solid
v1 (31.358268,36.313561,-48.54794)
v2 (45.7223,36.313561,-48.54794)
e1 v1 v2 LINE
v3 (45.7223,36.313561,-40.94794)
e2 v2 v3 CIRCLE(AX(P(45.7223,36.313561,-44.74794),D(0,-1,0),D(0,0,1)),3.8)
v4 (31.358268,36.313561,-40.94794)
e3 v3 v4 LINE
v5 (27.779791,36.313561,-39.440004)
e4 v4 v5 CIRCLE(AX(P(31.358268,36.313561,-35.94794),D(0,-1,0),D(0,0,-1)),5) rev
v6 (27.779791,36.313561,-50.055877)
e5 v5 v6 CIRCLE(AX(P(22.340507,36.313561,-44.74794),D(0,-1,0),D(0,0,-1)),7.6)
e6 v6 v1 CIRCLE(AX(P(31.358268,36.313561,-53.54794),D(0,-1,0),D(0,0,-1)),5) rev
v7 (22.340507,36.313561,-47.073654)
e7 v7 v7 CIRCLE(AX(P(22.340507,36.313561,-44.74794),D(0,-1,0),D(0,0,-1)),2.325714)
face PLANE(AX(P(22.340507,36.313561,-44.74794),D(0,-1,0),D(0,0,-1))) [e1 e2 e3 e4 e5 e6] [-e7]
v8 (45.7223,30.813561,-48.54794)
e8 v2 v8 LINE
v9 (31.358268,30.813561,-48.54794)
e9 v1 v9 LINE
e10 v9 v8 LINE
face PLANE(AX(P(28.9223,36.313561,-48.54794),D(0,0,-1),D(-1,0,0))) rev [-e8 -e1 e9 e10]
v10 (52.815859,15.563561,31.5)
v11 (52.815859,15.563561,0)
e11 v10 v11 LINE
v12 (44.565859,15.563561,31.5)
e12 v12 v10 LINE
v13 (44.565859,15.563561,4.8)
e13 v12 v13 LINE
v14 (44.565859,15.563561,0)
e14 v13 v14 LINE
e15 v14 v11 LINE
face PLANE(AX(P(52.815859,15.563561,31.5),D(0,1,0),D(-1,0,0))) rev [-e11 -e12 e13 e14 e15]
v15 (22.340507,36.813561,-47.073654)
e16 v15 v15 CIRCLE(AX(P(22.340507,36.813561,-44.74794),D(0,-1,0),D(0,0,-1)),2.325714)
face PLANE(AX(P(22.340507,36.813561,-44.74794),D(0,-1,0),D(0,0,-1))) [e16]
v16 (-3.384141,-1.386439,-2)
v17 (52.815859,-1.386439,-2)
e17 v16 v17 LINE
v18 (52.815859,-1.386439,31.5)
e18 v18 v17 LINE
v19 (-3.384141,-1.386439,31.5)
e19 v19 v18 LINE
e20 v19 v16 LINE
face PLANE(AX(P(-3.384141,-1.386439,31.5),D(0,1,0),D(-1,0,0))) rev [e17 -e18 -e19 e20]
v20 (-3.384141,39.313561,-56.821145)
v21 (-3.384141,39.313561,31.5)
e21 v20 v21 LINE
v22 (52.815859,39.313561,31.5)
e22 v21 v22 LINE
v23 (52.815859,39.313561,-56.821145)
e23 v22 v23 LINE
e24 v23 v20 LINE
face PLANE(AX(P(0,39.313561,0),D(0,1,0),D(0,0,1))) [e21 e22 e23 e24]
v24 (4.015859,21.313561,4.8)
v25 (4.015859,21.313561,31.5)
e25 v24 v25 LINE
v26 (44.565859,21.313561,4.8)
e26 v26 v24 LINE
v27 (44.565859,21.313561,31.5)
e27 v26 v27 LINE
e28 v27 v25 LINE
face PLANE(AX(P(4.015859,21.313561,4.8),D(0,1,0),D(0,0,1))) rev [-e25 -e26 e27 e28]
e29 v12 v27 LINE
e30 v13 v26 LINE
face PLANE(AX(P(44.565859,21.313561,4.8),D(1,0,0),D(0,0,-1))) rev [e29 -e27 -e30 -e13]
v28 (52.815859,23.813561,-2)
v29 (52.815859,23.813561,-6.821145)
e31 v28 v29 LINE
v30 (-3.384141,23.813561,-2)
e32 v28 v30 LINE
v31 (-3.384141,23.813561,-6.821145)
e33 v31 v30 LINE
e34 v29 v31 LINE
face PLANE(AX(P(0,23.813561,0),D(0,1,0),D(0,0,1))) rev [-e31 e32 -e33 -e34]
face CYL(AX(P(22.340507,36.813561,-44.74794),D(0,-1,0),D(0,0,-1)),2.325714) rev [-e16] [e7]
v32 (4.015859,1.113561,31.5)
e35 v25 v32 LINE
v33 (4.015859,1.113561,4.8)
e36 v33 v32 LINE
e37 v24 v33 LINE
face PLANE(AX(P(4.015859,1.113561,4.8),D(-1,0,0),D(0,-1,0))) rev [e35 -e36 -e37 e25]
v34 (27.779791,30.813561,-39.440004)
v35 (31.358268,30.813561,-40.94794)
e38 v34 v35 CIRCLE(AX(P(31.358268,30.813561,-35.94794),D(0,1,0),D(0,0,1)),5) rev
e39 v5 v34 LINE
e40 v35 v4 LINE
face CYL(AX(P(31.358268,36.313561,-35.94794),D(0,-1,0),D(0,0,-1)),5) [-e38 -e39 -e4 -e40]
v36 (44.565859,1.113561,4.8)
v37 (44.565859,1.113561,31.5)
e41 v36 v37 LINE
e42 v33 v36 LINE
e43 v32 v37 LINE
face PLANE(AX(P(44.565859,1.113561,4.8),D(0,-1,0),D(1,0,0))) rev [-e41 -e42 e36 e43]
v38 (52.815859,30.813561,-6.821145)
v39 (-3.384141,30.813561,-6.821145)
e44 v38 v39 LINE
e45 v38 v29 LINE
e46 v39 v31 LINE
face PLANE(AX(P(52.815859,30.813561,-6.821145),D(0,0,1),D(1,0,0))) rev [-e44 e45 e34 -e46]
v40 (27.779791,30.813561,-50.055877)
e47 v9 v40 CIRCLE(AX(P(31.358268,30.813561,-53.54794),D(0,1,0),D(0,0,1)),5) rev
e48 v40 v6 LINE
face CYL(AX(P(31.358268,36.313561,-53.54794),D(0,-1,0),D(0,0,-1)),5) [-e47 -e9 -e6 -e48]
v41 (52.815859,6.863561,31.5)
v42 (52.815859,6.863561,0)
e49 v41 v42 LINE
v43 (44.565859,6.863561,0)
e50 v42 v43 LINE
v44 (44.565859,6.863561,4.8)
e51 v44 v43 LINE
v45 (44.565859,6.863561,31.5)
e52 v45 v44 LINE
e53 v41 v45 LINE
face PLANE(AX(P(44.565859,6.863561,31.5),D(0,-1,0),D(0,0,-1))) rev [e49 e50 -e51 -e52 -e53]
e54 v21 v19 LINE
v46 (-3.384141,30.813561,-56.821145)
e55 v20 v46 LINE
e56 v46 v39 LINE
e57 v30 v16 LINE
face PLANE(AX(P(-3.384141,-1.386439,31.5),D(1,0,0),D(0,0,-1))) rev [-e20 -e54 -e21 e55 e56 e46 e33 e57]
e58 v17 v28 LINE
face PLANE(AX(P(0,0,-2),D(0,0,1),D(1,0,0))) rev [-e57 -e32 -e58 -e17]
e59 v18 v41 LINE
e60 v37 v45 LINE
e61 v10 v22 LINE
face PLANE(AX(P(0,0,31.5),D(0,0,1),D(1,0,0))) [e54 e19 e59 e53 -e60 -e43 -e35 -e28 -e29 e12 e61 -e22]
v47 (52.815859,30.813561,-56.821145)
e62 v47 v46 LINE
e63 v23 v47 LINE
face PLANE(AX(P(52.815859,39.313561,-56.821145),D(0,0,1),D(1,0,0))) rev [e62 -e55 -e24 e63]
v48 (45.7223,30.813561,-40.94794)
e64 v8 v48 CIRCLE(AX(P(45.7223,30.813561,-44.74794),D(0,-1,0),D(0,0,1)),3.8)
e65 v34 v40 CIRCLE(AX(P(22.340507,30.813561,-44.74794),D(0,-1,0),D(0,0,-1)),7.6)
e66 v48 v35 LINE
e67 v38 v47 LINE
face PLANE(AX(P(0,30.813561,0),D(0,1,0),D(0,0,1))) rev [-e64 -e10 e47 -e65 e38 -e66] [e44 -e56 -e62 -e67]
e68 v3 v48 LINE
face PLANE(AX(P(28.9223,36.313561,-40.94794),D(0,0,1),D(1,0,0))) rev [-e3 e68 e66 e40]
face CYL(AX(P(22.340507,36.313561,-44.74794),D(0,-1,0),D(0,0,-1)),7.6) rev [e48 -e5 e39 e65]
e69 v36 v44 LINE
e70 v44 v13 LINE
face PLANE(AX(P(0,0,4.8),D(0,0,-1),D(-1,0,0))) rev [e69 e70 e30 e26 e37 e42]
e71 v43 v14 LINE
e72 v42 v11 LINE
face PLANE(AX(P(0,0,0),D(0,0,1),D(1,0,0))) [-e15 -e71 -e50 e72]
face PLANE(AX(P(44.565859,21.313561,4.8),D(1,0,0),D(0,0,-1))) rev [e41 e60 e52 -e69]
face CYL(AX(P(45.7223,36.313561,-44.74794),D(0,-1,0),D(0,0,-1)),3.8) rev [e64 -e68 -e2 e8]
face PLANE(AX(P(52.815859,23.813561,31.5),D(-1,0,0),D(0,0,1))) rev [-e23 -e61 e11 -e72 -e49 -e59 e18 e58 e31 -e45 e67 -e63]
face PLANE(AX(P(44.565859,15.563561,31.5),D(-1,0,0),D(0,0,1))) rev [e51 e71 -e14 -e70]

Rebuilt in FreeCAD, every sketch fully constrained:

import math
import FreeCAD as App
import Part
import Sketcher
from FreeCAD import Vector
Q = App.Units.Quantity


def edges_at(feature, points):
    """Names of the edges that pass closest to the given points."""
    edges = feature.Shape.Edges
    near = lambda p: min(range(len(edges)), key=lambda i: edges[i].distToShape(Part.Vertex(*p))[0])
    return sorted({f"Edge{near(p) + 1}" for p in points})

doc = App.newDocument("Part")
body = doc.addObject("PartDesign::Body", "Body")

sketch1 = doc.addObject("Sketcher::SketchObject", "Sketch")
body.addObject(sketch1)
sketch1.AttachmentSupport = (doc.XY_Plane, [""])
sketch1.MapMode = "FlatFace"
sketch1.addGeometry([
    Part.LineSegment(Vector(-3, 24, 0), Vector(-3, -1, 0)),
    Part.LineSegment(Vector(-3, -1, 0), Vector(53, -1, 0)),
    Part.LineSegment(Vector(53, -1, 0), Vector(53, 7, 0)),
    Part.LineSegment(Vector(53, 7, 0), Vector(45, 7, 0)),
    Part.LineSegment(Vector(45, 7, 0), Vector(45, 16, 0)),
    Part.LineSegment(Vector(45, 16, 0), Vector(53, 16, 0)),
    Part.LineSegment(Vector(53, 16, 0), Vector(53, 24, 0)),
    Part.LineSegment(Vector(53, 24, 0), Vector(-3, 24, 0)),
], False)
sketch1.addConstraint([
    Sketcher.Constraint("Coincident", 0, 2, 1, 1),
    Sketcher.Constraint("Coincident", 1, 2, 2, 1),
    Sketcher.Constraint("Coincident", 2, 2, 3, 1),
    Sketcher.Constraint("Coincident", 3, 2, 4, 1),
    Sketcher.Constraint("Coincident", 4, 2, 5, 1),
    Sketcher.Constraint("Coincident", 5, 2, 6, 1),
    Sketcher.Constraint("Coincident", 6, 2, 7, 1),
    Sketcher.Constraint("Coincident", 7, 2, 0, 1),
    Sketcher.Constraint("Vertical", 0),
    Sketcher.Constraint("Horizontal", 1),
    Sketcher.Constraint("Vertical", 2),
    Sketcher.Constraint("Horizontal", 3),
    Sketcher.Constraint("Vertical", 4),
    Sketcher.Constraint("Horizontal", 5),
    Sketcher.Constraint("Vertical", 6),
    Sketcher.Constraint("Horizontal", 7),
    Sketcher.Constraint("Vertical", 2, 2, 5, 2),
    Sketcher.Constraint("Equal", 5, 2),
    Sketcher.Constraint("Equal", 2, 6),
    Sketcher.Constraint("DistanceX", 1, 1, 1, 2, Q("56.2 mm")),
    Sketcher.Constraint("DistanceY", 0, 2, 0, 1, Q("25.2 mm")),
    Sketcher.Constraint("DistanceY", 4, 1, 4, 2, Q("8.7 mm")),
    Sketcher.Constraint("DistanceX", 0, 2, -1, 1, Q("3.384141 mm")),
    Sketcher.Constraint("DistanceY", 0, 2, -1, 1, Q("1.386439 mm")),
])
pad1 = doc.addObject("PartDesign::Pad", "Pad")
body.addObject(pad1)
pad1.Profile = sketch1
pad1.Length = 31.5

sketch2 = doc.addObject("Sketcher::SketchObject", "Sketch001")
body.addObject(sketch2)
sketch2.AttachmentSupport = (doc.XY_Plane, [""])
sketch2.MapMode = "FlatFace"
sketch2.AttachmentOffset = App.Placement(Vector(0, 0, 31.5), App.Rotation())
sketch2.addGeometry([
    Part.LineSegment(Vector(45, 21, 0), Vector(4, 21, 0)),
    Part.LineSegment(Vector(4, 21, 0), Vector(4, 1, 0)),
    Part.LineSegment(Vector(4, 1, 0), Vector(45, 1, 0)),
    Part.LineSegment(Vector(45, 1, 0), Vector(45, 21, 0)),
], False)
sketch2.addConstraint([
    Sketcher.Constraint("Coincident", 0, 2, 1, 1),
    Sketcher.Constraint("Coincident", 1, 2, 2, 1),
    Sketcher.Constraint("Coincident", 2, 2, 3, 1),
    Sketcher.Constraint("Coincident", 3, 2, 0, 1),
    Sketcher.Constraint("Horizontal", 0),
    Sketcher.Constraint("Vertical", 1),
    Sketcher.Constraint("Horizontal", 2),
    Sketcher.Constraint("Vertical", 3),
    Sketcher.Constraint("DistanceY", 1, 2, 1, 1, Q("20.2 mm")),
    Sketcher.Constraint("DistanceX", 0, 2, 0, 1, Q("40.55 mm")),
    Sketcher.Constraint("DistanceX", -1, 1, 0, 2, Q("4.015859 mm")),
    Sketcher.Constraint("DistanceY", -1, 1, 0, 2, Q("21.313561 mm")),
])
pocket1 = doc.addObject("PartDesign::Pocket", "Pocket")
body.addObject(pocket1)
pocket1.Profile = sketch2
pocket1.Length = 26.7

sketch3 = doc.addObject("Sketcher::SketchObject", "Sketch002")
body.addObject(sketch3)
sketch3.AttachmentSupport = (doc.XY_Plane, [""])
sketch3.MapMode = "FlatFace"
sketch3.addGeometry([
    Part.LineSegment(Vector(53, 24, 0), Vector(53, -1, 0)),
    Part.LineSegment(Vector(53, -1, 0), Vector(-3, -1, 0)),
    Part.LineSegment(Vector(-3, -1, 0), Vector(-3, 24, 0)),
    Part.LineSegment(Vector(-3, 24, 0), Vector(53, 24, 0)),
], False)
sketch3.addConstraint([
    Sketcher.Constraint("Coincident", 0, 2, 1, 1),
    Sketcher.Constraint("Coincident", 1, 2, 2, 1),
    Sketcher.Constraint("Coincident", 2, 2, 3, 1),
    Sketcher.Constraint("Coincident", 3, 2, 0, 1),
    Sketcher.Constraint("Vertical", 0),
    Sketcher.Constraint("Horizontal", 1),
    Sketcher.Constraint("Vertical", 2),
    Sketcher.Constraint("Horizontal", 3),
    Sketcher.Constraint("DistanceX", 1, 2, 1, 1, Q("56.2 mm")),
    Sketcher.Constraint("DistanceY", 0, 2, 0, 1, Q("25.2 mm")),
    Sketcher.Constraint("DistanceX", -1, 1, 0, 2, Q("52.815859 mm")),
    Sketcher.Constraint("DistanceY", 0, 2, -1, 1, Q("1.386439 mm")),
])
pad2 = doc.addObject("PartDesign::Pad", "Pad001")
body.addObject(pad2)
pad2.Profile = sketch3
pad2.Length = 2
pad2.Reversed = True

sketch4 = doc.addObject("Sketcher::SketchObject", "Sketch003")
body.addObject(sketch4)
sketch4.AttachmentSupport = (doc.XZ_Plane, [""])
sketch4.MapMode = "FlatFace"
sketch4.AttachmentOffset = App.Placement(Vector(0, 0, -23.813561), App.Rotation())
sketch4.addGeometry([
    Part.LineSegment(Vector(-3, -7, 0), Vector(-3, 13, 0)),
    Part.LineSegment(Vector(-3, 13, 0), Vector(53, 13, 0)),
    Part.LineSegment(Vector(53, 13, 0), Vector(53, -7, 0)),
    Part.LineSegment(Vector(53, -7, 0), Vector(-3, -7, 0)),
], False)
sketch4.addConstraint([
    Sketcher.Constraint("Coincident", 0, 2, 1, 1),
    Sketcher.Constraint("Coincident", 1, 2, 2, 1),
    Sketcher.Constraint("Coincident", 2, 2, 3, 1),
    Sketcher.Constraint("Coincident", 3, 2, 0, 1),
    Sketcher.Constraint("Vertical", 0),
    Sketcher.Constraint("Horizontal", 1),
    Sketcher.Constraint("Vertical", 2),
    Sketcher.Constraint("Horizontal", 3),
    Sketcher.Constraint("DistanceY", 0, 1, 0, 2, Q("20 mm")),
    Sketcher.Constraint("DistanceX", 1, 1, 1, 2, Q("56.2 mm")),
    Sketcher.Constraint("DistanceX", 0, 2, -1, 1, Q("3.384141 mm")),
    Sketcher.Constraint("DistanceY", -1, 1, 0, 2, Q("13.178855 mm")),
])
pad3 = doc.addObject("PartDesign::Pad", "Pad002")
body.addObject(pad3)
pad3.Profile = sketch4
pad3.Length = 7
pad3.Reversed = True

sketch5 = doc.addObject("Sketcher::SketchObject", "Sketch004")
body.addObject(sketch5)
sketch5.AttachmentSupport = (doc.XZ_Plane, [""])
sketch5.MapMode = "FlatFace"
sketch5.AttachmentOffset = App.Placement(Vector(0, 0, -30.813561), App.Rotation())
sketch5.addGeometry([
    Part.LineSegment(Vector(-3, -57, 0), Vector(-3, 3, 0)),
    Part.LineSegment(Vector(-3, 3, 0), Vector(53, 3, 0)),
    Part.LineSegment(Vector(53, 3, 0), Vector(53, -57, 0)),
    Part.LineSegment(Vector(53, -57, 0), Vector(-3, -57, 0)),
], False)
sketch5.addConstraint([
    Sketcher.Constraint("Coincident", 0, 2, 1, 1),
    Sketcher.Constraint("Coincident", 1, 2, 2, 1),
    Sketcher.Constraint("Coincident", 2, 2, 3, 1),
    Sketcher.Constraint("Coincident", 3, 2, 0, 1),
    Sketcher.Constraint("Vertical", 0),
    Sketcher.Constraint("Horizontal", 1),
    Sketcher.Constraint("Vertical", 2),
    Sketcher.Constraint("Horizontal", 3),
    Sketcher.Constraint("DistanceY", 0, 1, 0, 2, Q("60 mm")),
    Sketcher.Constraint("DistanceX", 1, 1, 1, 2, Q("56.2 mm")),
    Sketcher.Constraint("DistanceX", 0, 2, -1, 1, Q("3.384141 mm")),
    Sketcher.Constraint("DistanceY", -1, 1, 0, 2, Q("3.178855 mm")),
])
pad4 = doc.addObject("PartDesign::Pad", "Pad003")
body.addObject(pad4)
pad4.Profile = sketch5
pad4.Length = 8.5
pad4.Reversed = True

sketch6 = doc.addObject("Sketcher::SketchObject", "Sketch005")
body.addObject(sketch6)
sketch6.AttachmentSupport = (doc.XZ_Plane, [""])
sketch6.MapMode = "FlatFace"
sketch6.AttachmentOffset = App.Placement(Vector(0, 0, -30.813561), App.Rotation())
sketch6.addGeometry([
    Part.LineSegment(Vector(45.7, -40.9, 0), Vector(28.9, -40.9, 0)),
    Part.ArcOfCircle(Part.Circle(Vector(22.3, -44.7, 0), Vector(0, 0, 1), 7.6), math.radians(30), math.radians(330)),
    Part.LineSegment(Vector(28.9, -48.5, 0), Vector(45.7, -48.5, 0)),
    Part.ArcOfCircle(Part.Circle(Vector(45.7, -44.7, 0), Vector(0, 0, 1), 3.8), math.radians(-90), math.radians(90)),
], False)
sketch6.addConstraint([
    Sketcher.Constraint("Coincident", 0, 2, 1, 1),
    Sketcher.Constraint("Coincident", 1, 2, 2, 1),
    Sketcher.Constraint("Tangent", 2, 2, 3, 1),
    Sketcher.Constraint("Tangent", 3, 2, 0, 1),
    Sketcher.Constraint("Horizontal", 0),
    Sketcher.Constraint("Horizontal", 2),
    Sketcher.Constraint("Horizontal", 1, 3, 3, 3),
    Sketcher.Constraint("Radius", 1, Q("7.6 mm")),
    Sketcher.Constraint("Radius", 3, Q("3.8 mm")),
    Sketcher.Constraint("DistanceX", 0, 2, 0, 1, Q("16.8 mm")),
    Sketcher.Constraint("DistanceX", -1, 1, 3, 3, Q("45.7223 mm")),
    Sketcher.Constraint("DistanceY", 1, 3, -1, 1, Q("44.74794 mm")),
])
pocket2 = doc.addObject("PartDesign::Pocket", "Pocket001")
body.addObject(pocket2)
pocket2.Profile = sketch6
pocket2.Length = 5.5

sketch7 = doc.addObject("Sketcher::SketchObject", "Sketch006")
body.addObject(sketch7)
sketch7.AttachmentSupport = (doc.XZ_Plane, [""])
sketch7.MapMode = "FlatFace"
sketch7.AttachmentOffset = App.Placement(Vector(0, 0, -36.313561), App.Rotation())
sketch7.addGeometry(Part.Circle(Vector(22.3, -44.7, 0), Vector(0, 0, 1), 2.3), False)
sketch7.addConstraint([
    Sketcher.Constraint("Diameter", 0, Q("4.651429 mm")),
    Sketcher.Constraint("DistanceY", 0, 3, -1, 1, Q("44.74794 mm")),
    Sketcher.Constraint("DistanceX", -1, 1, 0, 3, Q("22.340507 mm")),
])
pocket3 = doc.addObject("PartDesign::Pocket", "Pocket002")
body.addObject(pocket3)
pocket3.Profile = sketch7
pocket3.Length = 0.5

sketch8 = doc.addObject("Sketcher::SketchObject", "Sketch007")
body.addObject(sketch8)
sketch8.AttachmentSupport = (doc.XY_Plane, [""])
sketch8.MapMode = "FlatFace"
sketch8.AttachmentOffset = App.Placement(Vector(0, 0, 13.178855), App.Rotation())
sketch8.addGeometry([
    Part.LineSegment(Vector(-3, 31, 0), Vector(-3, 24, 0)),
    Part.LineSegment(Vector(-3, 24, 0), Vector(53, 24, 0)),
    Part.LineSegment(Vector(53, 24, 0), Vector(53, 31, 0)),
    Part.LineSegment(Vector(53, 31, 0), Vector(-3, 31, 0)),
], False)
sketch8.addConstraint([
    Sketcher.Constraint("Coincident", 0, 2, 1, 1),
    Sketcher.Constraint("Coincident", 1, 2, 2, 1),
    Sketcher.Constraint("Coincident", 2, 2, 3, 1),
    Sketcher.Constraint("Coincident", 3, 2, 0, 1),
    Sketcher.Constraint("Vertical", 0),
    Sketcher.Constraint("Horizontal", 1),
    Sketcher.Constraint("Vertical", 2),
    Sketcher.Constraint("Horizontal", 3),
    Sketcher.Constraint("DistanceY", 0, 2, 0, 1, Q("7 mm")),
    Sketcher.Constraint("DistanceX", 1, 1, 1, 2, Q("56.2 mm")),
    Sketcher.Constraint("DistanceX", 0, 2, -1, 1, Q("3.384141 mm")),
    Sketcher.Constraint("DistanceY", -1, 1, 0, 2, Q("23.813561 mm")),
])
pad5 = doc.addObject("PartDesign::Pad", "Pad004")
body.addObject(pad5)
pad5.Profile = sketch8
pad5.Length = 18.321145

sketch9 = doc.addObject("Sketcher::SketchObject", "Sketch008")
body.addObject(sketch9)
sketch9.AttachmentSupport = (doc.XY_Plane, [""])
sketch9.MapMode = "FlatFace"
sketch9.AttachmentOffset = App.Placement(Vector(0, 0, 3.178855), App.Rotation())
sketch9.addGeometry([
    Part.LineSegment(Vector(-3, 39, 0), Vector(-3, 31, 0)),
    Part.LineSegment(Vector(-3, 31, 0), Vector(53, 31, 0)),
    Part.LineSegment(Vector(53, 31, 0), Vector(53, 39, 0)),
    Part.LineSegment(Vector(53, 39, 0), Vector(-3, 39, 0)),
], False)
sketch9.addConstraint([
    Sketcher.Constraint("Coincident", 0, 2, 1, 1),
    Sketcher.Constraint("Coincident", 1, 2, 2, 1),
    Sketcher.Constraint("Coincident", 2, 2, 3, 1),
    Sketcher.Constraint("Coincident", 3, 2, 0, 1),
    Sketcher.Constraint("Vertical", 0),
    Sketcher.Constraint("Horizontal", 1),
    Sketcher.Constraint("Vertical", 2),
    Sketcher.Constraint("Horizontal", 3),
    Sketcher.Constraint("DistanceX", 1, 1, 1, 2, Q("56.2 mm")),
    Sketcher.Constraint("DistanceY", 0, 2, 0, 1, Q("8.5 mm")),
    Sketcher.Constraint("DistanceX", 0, 2, -1, 1, Q("3.384141 mm")),
    Sketcher.Constraint("DistanceY", -1, 1, 0, 2, Q("30.813561 mm")),
])
pad6 = doc.addObject("PartDesign::Pad", "Pad005")
body.addObject(pad6)
pad6.Profile = sketch9
pad6.Length = 28.321145
doc.recompute()

fillet = doc.addObject("PartDesign::Fillet", "Fillet")
body.addObject(fillet)
fillet.Base = (pad6, edges_at(pad6, [(28.922, 33.564, -48.548), (28.922, 33.564, -40.948)]))
fillet.Radius = 5

doc.recompute()
